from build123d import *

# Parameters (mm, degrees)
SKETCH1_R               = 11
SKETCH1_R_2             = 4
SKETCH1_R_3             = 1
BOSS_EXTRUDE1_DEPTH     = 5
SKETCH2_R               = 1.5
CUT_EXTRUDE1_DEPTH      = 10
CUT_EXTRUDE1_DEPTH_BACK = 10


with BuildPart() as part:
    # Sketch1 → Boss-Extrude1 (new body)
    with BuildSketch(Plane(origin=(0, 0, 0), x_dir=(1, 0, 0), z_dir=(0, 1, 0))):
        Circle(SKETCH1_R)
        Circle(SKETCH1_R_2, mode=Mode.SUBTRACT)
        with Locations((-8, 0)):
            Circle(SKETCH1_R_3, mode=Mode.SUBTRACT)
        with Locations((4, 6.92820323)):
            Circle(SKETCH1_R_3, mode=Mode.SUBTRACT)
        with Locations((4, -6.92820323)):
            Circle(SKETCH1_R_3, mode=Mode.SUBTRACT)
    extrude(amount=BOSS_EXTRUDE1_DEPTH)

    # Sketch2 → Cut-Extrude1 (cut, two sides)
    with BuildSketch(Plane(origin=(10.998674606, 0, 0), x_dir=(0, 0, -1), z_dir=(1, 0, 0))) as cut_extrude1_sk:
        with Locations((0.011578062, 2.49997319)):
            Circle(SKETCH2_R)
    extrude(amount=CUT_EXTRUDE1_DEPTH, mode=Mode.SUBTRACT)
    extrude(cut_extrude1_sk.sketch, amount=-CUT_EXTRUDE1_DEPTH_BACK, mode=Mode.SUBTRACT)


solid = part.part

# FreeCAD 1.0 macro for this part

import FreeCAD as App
import Part
import Sketcher
from FreeCAD import Vector
Q = App.Units.Quantity

doc = App.newDocument("Part")
params = doc.addObject("Spreadsheet::Sheet", "Params")
for row, (alias, value) in enumerate([
    ("sketch1_diameter", "22 mm"),
    ("sketch1_diameter2", "2 mm"),
    ("sketch1_diameter3", "8 mm"),
    ("pad1_length", "5 mm"),
    ("sketch2_diameter", "3 mm"),
    ("pocket1_length", "10 mm"),
    ("pocket1_length2", "10 mm"),
], start=1):
    params.set(f"A{row}", alias)
    params.set(f"B{row}", "=" + value)
    params.setAlias(f"B{row}", alias)

body = doc.addObject("PartDesign::Body", "Body")

sketch1 = body.newObject("Sketcher::SketchObject", "Sketch")
sketch1.AttachmentSupport = (doc.getObject("XZ_Plane"), [""])
sketch1.MapMode = "FlatFace"
sketch1.addGeometry([
    Part.Circle(Vector(0, 0, 0), Vector(0, 0, 1), 11),
    Part.Circle(Vector(-8, 0, 0), Vector(0, 0, 1), 1),
    Part.Circle(Vector(4, 6.928203, 0), Vector(0, 0, 1), 1),
    Part.Circle(Vector(0, 0, 0), Vector(0, 0, 1), 4),
    Part.Circle(Vector(4, -6.928203, 0), Vector(0, 0, 1), 1),
], False)
sketch1.addConstraint([
    Sketcher.Constraint("Coincident", 0, 3, -1, 1),
    Sketcher.Constraint("Coincident", 3, 3, -1, 1),
    Sketcher.Constraint("Equal", 1, 2),
    Sketcher.Constraint("Equal", 2, 4),
    Sketcher.Constraint("Symmetric", 2, 3, 4, 3, -1),
    Sketcher.Constraint("PointOnObject", 1, 3, -1),
    Sketcher.Constraint("Diameter", 0, Q("22 mm")),
    Sketcher.Constraint("Diameter", 1, Q("2 mm")),
    Sketcher.Constraint("Diameter", 3, Q("8 mm")),
    Sketcher.Constraint("DistanceX", 1, 3, -1, 1, Q("8 mm")),
    Sketcher.Constraint("DistanceX", -1, 1, 2, 3, Q("4 mm")),
    Sketcher.Constraint("DistanceY", -1, 1, 2, 3, Q("6.928203 mm")),
])
sketch1.setExpression("Constraints[6]", "Params.sketch1_diameter")
sketch1.setExpression("Constraints[7]", "Params.sketch1_diameter2")
sketch1.setExpression("Constraints[8]", "Params.sketch1_diameter3")
pad1 = body.newObject("PartDesign::Pad", "Pad")
pad1.Profile = sketch1
pad1.setExpression("Length", "Params.pad1_length")
pad1.Reversed = True

sketch2 = body.newObject("Sketcher::SketchObject", "Sketch001")
sketch2.AttachmentSupport = (doc.getObject("YZ_Plane"), [""])
sketch2.MapMode = "FlatFace"
sketch2.AttachmentOffset = App.Placement(Vector(0, 0, 10.998675), App.Rotation())
sketch2.addGeometry(Part.Circle(Vector(2.499973, -0.011578, 0), Vector(0, 0, 1), 1.5), False)
sketch2.addConstraint([
    Sketcher.Constraint("Diameter", 0, Q("3 mm")),
    Sketcher.Constraint("DistanceY", 0, 3, -1, 1, Q("0.011578 mm")),
    Sketcher.Constraint("DistanceX", -1, 1, 0, 3, Q("2.499973 mm")),
])
sketch2.setExpression("Constraints[0]", "Params.sketch2_diameter")
pocket1 = body.newObject("PartDesign::Pocket", "Pocket")
pocket1.Profile = sketch2
pocket1.Type = "TwoLengths"
pocket1.setExpression("Length", "Params.pocket1_length")
pocket1.setExpression("Length2", "Params.pocket1_length2")
pocket1.Reversed = True

doc.recompute()
